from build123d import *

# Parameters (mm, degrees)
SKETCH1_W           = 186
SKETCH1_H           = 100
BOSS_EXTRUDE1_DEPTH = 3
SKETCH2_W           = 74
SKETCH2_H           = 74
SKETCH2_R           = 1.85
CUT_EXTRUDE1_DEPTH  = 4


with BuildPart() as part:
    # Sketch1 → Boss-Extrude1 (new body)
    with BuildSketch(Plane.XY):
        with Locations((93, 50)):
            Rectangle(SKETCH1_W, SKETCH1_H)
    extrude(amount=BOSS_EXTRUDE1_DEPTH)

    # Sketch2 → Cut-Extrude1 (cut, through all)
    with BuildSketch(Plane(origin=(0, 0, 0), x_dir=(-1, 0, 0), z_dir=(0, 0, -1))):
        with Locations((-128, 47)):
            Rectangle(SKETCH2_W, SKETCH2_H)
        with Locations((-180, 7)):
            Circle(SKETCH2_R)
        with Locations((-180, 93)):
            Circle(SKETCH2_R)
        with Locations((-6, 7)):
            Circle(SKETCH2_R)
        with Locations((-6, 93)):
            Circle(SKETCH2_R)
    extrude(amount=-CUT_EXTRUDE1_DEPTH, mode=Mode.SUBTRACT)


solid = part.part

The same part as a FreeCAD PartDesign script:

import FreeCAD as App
import Part
import Sketcher

V = App.Vector
Q = App.Units.Quantity


def add_polygon(sketch, points):
    """Adds a closed chain of lines whose ends are joined by coincident constraints."""
    first, n = sketch.GeometryCount, len(points)
    for a, b in zip(points, points[1:] + points[:1]):
        sketch.addGeometry(Part.LineSegment(App.Vector(*a, 0), App.Vector(*b, 0)), False)
    for i in range(n):
        sketch.addConstraint(Sketcher.Constraint("Coincident", first + i, 2, first + (i + 1) % n, 1))

doc = App.newDocument("Part")
body = doc.addObject("PartDesign::Body", "Body")

sketch1 = doc.addObject("Sketcher::SketchObject", "Sketch")
body.addObject(sketch1)
sketch1.AttachmentSupport = (doc.XY_Plane, [""])
sketch1.MapMode = "FlatFace"
add_polygon(sketch1, [(0, 100), (0, 0), (186, 0), (186, 100)])
sketch1.addConstraint([
    Sketcher.Constraint("Vertical", 0),
    Sketcher.Constraint("Horizontal", 1),
    Sketcher.Constraint("Vertical", 2),
    Sketcher.Constraint("Horizontal", 3),
    Sketcher.Constraint("Coincident", 0, 2, -1, 1),
    Sketcher.Constraint("DistanceX", 1, 1, 1, 2, Q("186 mm")),
    Sketcher.Constraint("DistanceY", 0, 2, 0, 1, Q("100 mm")),
])
pad1 = doc.addObject("PartDesign::Pad", "Pad")
body.addObject(pad1)
pad1.Profile = sketch1
pad1.Length = 3

sketch2 = doc.addObject("Sketcher::SketchObject", "Sketch001")
body.addObject(sketch2)
sketch2.AttachmentSupport = (doc.XY_Plane, [""])
sketch2.MapMode = "FlatFace"
add_polygon(sketch2, [(165, 84), (165, 10), (91, 10), (91, 84)])
sketch2.addGeometry(Part.Circle(V(180, 7, 0), V(0, 0, 1), 1.9), False)
sketch2.addGeometry(Part.Circle(V(180, 93, 0), V(0, 0, 1), 1.9), False)
sketch2.addGeometry(Part.Circle(V(6, 7, 0), V(0, 0, 1), 1.9), False)
sketch2.addGeometry(Part.Circle(V(6, 93, 0), V(0, 0, 1), 1.9), False)
sketch2.addConstraint([
    Sketcher.Constraint("Vertical", 0),
    Sketcher.Constraint("Horizontal", 1),
    Sketcher.Constraint("Vertical", 2),
    Sketcher.Constraint("Horizontal", 3),
    Sketcher.Constraint("Equal", 4, 5),
    Sketcher.Constraint("Equal", 5, 6),
    Sketcher.Constraint("Equal", 6, 7),
    Sketcher.Constraint("Horizontal", 4, 3, 6, 3),
    Sketcher.Constraint("Horizontal", 5, 3, 7, 3),
    Sketcher.Constraint("Vertical", 4, 3, 5, 3),
    Sketcher.Constraint("Vertical", 6, 3, 7, 3),
    Sketcher.Constraint("Equal", 3, 0),
    Sketcher.Constraint("Diameter", 4, Q("3.7 mm")),
    Sketcher.Constraint("DistanceX", 1, 2, 1, 1, Q("74 mm")),
    Sketcher.Constraint("DistanceX", -1, 1, 4, 3, Q("180 mm")),
    Sketcher.Constraint("DistanceY", -1, 1, 4, 3, Q("7 mm")),
    Sketcher.Constraint("DistanceY", -1, 1, 5, 3, Q("93 mm")),
    Sketcher.Constraint("DistanceX", -1, 1, 6, 3, Q("6 mm")),
    Sketcher.Constraint("DistanceX", -1, 1, 0, 2, Q("165 mm")),
    Sketcher.Constraint("DistanceY", -1, 1, 0, 2, Q("10 mm")),
])
pocket1 = doc.addObject("PartDesign::Pocket", "Pocket")
body.addObject(pocket1)
pocket1.Profile = sketch2
pocket1.Type = "ThroughAll"
pocket1.Reversed = True

doc.recompute()
